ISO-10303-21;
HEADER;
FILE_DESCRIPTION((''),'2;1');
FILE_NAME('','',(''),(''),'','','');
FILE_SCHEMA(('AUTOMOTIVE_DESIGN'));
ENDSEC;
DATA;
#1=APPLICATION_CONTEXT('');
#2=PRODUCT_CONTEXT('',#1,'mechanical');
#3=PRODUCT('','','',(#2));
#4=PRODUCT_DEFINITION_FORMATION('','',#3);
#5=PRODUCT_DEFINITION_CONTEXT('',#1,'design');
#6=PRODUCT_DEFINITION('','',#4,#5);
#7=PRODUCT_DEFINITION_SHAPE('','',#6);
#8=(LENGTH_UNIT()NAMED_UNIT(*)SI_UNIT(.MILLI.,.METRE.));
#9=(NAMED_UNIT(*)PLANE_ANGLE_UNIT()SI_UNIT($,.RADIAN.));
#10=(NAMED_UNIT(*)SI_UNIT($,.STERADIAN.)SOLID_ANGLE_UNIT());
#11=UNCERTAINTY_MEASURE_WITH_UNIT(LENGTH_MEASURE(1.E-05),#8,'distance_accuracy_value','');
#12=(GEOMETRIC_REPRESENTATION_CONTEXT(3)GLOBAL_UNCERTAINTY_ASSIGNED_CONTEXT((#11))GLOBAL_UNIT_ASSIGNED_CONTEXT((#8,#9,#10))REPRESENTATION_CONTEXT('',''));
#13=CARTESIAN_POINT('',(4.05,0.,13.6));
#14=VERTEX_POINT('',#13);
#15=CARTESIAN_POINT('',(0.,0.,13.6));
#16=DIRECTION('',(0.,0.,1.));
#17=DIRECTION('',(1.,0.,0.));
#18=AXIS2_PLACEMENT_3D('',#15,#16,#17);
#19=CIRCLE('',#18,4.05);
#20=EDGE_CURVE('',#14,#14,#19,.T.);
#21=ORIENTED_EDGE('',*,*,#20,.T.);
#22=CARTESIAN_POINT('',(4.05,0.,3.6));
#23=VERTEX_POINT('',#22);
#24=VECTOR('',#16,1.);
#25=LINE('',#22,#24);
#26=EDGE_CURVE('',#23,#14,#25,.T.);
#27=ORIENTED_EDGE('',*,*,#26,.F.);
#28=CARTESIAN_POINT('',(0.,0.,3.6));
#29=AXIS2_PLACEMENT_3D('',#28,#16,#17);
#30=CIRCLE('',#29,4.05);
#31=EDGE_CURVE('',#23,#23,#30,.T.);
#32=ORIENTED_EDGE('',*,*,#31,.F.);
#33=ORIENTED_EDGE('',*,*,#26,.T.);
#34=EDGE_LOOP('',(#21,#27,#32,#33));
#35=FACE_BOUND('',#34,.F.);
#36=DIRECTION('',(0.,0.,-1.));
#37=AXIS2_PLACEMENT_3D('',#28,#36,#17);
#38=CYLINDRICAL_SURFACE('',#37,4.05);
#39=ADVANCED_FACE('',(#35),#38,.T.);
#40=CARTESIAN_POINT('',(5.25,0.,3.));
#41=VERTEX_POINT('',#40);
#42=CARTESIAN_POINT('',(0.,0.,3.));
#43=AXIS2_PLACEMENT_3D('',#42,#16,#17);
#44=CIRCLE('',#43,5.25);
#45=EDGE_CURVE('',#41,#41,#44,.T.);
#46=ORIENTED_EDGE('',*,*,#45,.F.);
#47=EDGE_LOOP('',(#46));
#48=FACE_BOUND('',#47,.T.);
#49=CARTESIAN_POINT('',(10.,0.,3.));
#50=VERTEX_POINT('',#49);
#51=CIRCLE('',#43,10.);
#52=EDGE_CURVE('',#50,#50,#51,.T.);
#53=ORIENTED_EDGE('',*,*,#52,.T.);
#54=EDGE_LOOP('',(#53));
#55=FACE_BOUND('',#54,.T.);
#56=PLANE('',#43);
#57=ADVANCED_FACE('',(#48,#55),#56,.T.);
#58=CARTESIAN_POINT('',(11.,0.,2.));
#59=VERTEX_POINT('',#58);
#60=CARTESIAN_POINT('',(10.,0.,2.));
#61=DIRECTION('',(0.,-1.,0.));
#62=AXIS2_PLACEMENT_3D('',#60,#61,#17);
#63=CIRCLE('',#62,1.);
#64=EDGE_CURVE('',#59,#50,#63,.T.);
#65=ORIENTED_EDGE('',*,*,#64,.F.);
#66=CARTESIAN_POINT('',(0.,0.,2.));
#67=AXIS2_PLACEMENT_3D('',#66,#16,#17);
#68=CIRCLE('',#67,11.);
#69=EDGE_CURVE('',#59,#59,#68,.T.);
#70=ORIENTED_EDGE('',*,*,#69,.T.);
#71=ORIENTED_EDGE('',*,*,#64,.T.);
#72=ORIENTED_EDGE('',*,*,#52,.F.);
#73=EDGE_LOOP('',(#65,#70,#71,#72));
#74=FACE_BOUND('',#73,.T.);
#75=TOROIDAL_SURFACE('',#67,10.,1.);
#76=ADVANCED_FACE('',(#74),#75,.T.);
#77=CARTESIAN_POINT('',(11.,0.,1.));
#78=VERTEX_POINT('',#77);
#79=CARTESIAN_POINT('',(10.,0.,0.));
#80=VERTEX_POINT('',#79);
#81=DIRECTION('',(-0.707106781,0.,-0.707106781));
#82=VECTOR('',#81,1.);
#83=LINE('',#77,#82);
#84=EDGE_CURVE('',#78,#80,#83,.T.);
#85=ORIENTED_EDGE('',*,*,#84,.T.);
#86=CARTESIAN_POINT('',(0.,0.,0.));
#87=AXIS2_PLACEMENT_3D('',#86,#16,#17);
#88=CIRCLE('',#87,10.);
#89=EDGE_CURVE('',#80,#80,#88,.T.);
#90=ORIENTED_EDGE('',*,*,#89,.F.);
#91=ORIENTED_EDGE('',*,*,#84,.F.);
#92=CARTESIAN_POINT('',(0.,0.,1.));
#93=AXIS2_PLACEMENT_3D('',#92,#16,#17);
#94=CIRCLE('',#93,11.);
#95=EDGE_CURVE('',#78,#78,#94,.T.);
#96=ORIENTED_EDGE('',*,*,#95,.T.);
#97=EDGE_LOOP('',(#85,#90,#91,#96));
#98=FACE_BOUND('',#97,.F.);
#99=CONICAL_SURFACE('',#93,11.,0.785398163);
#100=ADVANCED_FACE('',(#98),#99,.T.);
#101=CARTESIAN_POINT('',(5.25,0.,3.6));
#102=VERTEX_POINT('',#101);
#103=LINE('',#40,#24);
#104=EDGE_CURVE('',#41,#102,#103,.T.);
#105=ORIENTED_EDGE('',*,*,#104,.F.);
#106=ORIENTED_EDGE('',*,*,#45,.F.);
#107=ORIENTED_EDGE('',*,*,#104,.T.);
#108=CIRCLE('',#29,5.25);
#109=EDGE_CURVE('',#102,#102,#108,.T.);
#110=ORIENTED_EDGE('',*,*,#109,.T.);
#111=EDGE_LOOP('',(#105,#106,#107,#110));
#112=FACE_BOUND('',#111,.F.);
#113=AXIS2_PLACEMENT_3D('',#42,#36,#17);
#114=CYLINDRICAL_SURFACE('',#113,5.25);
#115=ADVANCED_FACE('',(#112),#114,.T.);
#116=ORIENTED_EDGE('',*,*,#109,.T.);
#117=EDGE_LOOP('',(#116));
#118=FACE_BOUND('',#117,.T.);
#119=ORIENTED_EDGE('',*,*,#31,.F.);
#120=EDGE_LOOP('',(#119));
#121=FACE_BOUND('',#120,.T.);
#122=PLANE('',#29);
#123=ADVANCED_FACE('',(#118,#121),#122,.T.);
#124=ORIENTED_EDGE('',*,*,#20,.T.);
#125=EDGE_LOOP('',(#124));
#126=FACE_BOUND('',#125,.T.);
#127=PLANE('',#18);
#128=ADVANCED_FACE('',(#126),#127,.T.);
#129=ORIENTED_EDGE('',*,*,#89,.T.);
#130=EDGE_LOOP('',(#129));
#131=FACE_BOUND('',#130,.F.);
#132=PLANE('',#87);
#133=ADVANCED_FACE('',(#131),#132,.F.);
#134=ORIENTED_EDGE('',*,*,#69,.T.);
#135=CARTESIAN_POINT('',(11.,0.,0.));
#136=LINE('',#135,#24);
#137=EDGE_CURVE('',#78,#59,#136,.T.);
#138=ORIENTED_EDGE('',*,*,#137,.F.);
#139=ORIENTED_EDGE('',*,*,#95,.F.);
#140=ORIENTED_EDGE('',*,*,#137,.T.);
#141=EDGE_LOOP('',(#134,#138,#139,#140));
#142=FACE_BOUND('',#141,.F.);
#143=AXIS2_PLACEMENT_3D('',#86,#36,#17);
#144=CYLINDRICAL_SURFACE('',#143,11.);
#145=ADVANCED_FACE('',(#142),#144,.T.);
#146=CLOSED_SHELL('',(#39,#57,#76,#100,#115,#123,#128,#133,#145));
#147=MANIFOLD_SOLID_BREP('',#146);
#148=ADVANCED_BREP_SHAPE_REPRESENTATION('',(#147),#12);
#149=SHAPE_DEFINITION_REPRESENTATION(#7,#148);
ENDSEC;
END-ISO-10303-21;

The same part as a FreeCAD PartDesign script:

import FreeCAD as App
import Part
import Sketcher
Q = App.Units.Quantity


def edges_at(feature, points):
    """Names of the edges that pass closest to the given points."""
    edges = feature.Shape.Edges
    near = lambda p: min(range(len(edges)), key=lambda i: edges[i].distToShape(Part.Vertex(*p))[0])
    return sorted({f"Edge{near(p) + 1}" for p in points})

doc = App.newDocument("Part")
body = doc.addObject("PartDesign::Body", "Body")

sketch1 = doc.addObject("Sketcher::SketchObject", "Sketch")
body.addObject(sketch1)
sketch1.AttachmentSupport = (doc.XY_Plane, [""])
sketch1.MapMode = "FlatFace"
sketch1.addGeometry(Part.Circle(App.Vector(0, 0, 0), App.Vector(0, 0, 1), 11), False)
sketch1.addConstraint([
    Sketcher.Constraint("Coincident", 0, 3, -1, 1),
    Sketcher.Constraint("Diameter", 0, Q("22 mm")),
])
pad1 = doc.addObject("PartDesign::Pad", "Pad")
body.addObject(pad1)
pad1.Profile = sketch1
pad1.Length = 3

sketch2 = doc.addObject("Sketcher::SketchObject", "Sketch001")
body.addObject(sketch2)
sketch2.AttachmentSupport = (doc.XY_Plane, [""])
sketch2.MapMode = "FlatFace"
sketch2.AttachmentOffset = App.Placement(App.Vector(0, 0, 3), App.Rotation())
sketch2.addGeometry(Part.Circle(App.Vector(0, 0, 0), App.Vector(0, 0, 1), 5.25), False)
sketch2.addConstraint([
    Sketcher.Constraint("Coincident", 0, 3, -1, 1),
    Sketcher.Constraint("Diameter", 0, Q("10.5 mm")),
])
pad2 = doc.addObject("PartDesign::Pad", "Pad001")
body.addObject(pad2)
pad2.Profile = sketch2
pad2.Length = 0.6

sketch3 = doc.addObject("Sketcher::SketchObject", "Sketch002")
body.addObject(sketch3)
sketch3.AttachmentSupport = (doc.XY_Plane, [""])
sketch3.MapMode = "FlatFace"
sketch3.AttachmentOffset = App.Placement(App.Vector(0, 0, 3.6), App.Rotation())
sketch3.addGeometry(Part.Circle(App.Vector(0, 0, 0), App.Vector(0, 0, 1), 4.05), False)
sketch3.addConstraint([
    Sketcher.Constraint("Coincident", 0, 3, -1, 1),
    Sketcher.Constraint("Diameter", 0, Q("8.1 mm")),
])
pad3 = doc.addObject("PartDesign::Pad", "Pad002")
body.addObject(pad3)
pad3.Profile = sketch3
pad3.Length = 10
doc.recompute()

chamfer = doc.addObject("PartDesign::Chamfer", "Chamfer")
body.addObject(chamfer)
chamfer.Base = (pad3, edges_at(pad3, [(-11, 0, 0)]))
chamfer.Size = 1
doc.recompute()

fillet = doc.addObject("PartDesign::Fillet", "Fillet")
body.addObject(fillet)
fillet.Base = (chamfer, edges_at(chamfer, [(-11, 0, 3)]))
fillet.Radius = 1

doc.recompute()
